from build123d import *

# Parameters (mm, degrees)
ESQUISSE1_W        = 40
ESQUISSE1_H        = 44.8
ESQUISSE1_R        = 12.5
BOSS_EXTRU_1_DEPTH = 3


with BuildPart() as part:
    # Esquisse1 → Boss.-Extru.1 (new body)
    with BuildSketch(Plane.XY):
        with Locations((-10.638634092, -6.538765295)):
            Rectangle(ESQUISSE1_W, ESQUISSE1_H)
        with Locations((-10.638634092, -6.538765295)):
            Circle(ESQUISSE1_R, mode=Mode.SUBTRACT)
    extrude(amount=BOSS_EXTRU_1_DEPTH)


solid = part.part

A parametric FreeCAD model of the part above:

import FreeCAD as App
import Part
import Sketcher

V = App.Vector
Q = App.Units.Quantity


def add_polygon(sketch, points):
    """Adds a closed chain of lines whose ends are joined by coincident constraints."""
    first, n = sketch.GeometryCount, len(points)
    for a, b in zip(points, points[1:] + points[:1]):
        sketch.addGeometry(Part.LineSegment(App.Vector(*a, 0), App.Vector(*b, 0)), False)
    for i in range(n):
        sketch.addConstraint(Sketcher.Constraint("Coincident", first + i, 2, first + (i + 1) % n, 1))

doc = App.newDocument("Part")
params = doc.addObject("Spreadsheet::Sheet", "Params")
for row, (alias, value) in enumerate([
    ("sketch1_diameter", "25 mm"),
    ("sketch1_width", "40 mm"),
    ("sketch1_height", "44.8 mm"),
    ("pad1_length", "3 mm"),
], start=1):
    params.set(f"A{row}", alias)
    params.set(f"B{row}", "=" + value)
    params.setAlias(f"B{row}", alias)

body = doc.addObject("PartDesign::Body", "Body")

# Sketch on XY plane
sketch1 = body.newObject("Sketcher::SketchObject", "Sketch")
sketch1.AttachmentSupport = (doc.getObject("XY_Plane"), [""])
sketch1.MapMode = "FlatFace"
add_polygon(sketch1, [(-30.638634, 15.861235), (-30.638634, -28.938765), (9.361366, -28.938765), (9.361366, 15.861235)])  # lines 0-3
sketch1.addGeometry(Part.Circle(V(-10.638634, -6.538765, 0), V(0, 0, 1), 12.5), False)  # 4
sketch1.addConstraint([
    Sketcher.Constraint("Vertical", 0),
    Sketcher.Constraint("Horizontal", 1),
    Sketcher.Constraint("Vertical", 2),
    Sketcher.Constraint("Horizontal", 3),
    Sketcher.Constraint("Diameter", 4, Q("25 mm")),
    Sketcher.Constraint("DistanceX", 1, 1, 1, 2, Q("40 mm")),
    Sketcher.Constraint("DistanceY", 0, 2, 0, 1, Q("44.8 mm")),
    Sketcher.Constraint("DistanceX", 0, 2, 4, 3, Q("20 mm")),
    Sketcher.Constraint("DistanceY", 0, 2, 4, 3, Q("22.4 mm")),
    Sketcher.Constraint("DistanceX", 4, 3, -1, 1, Q("10.638634 mm")),
    Sketcher.Constraint("DistanceY", 4, 3, -1, 1, Q("6.538765 mm")),
])
sketch1.setExpression("Constraints[8]", "Params.sketch1_diameter")
sketch1.setExpression("Constraints[9]", "Params.sketch1_width")
sketch1.setExpression("Constraints[10]", "Params.sketch1_height")
pad1 = body.newObject("PartDesign::Pad", "Pad")
pad1.Profile = sketch1
pad1.setExpression("Length", "Params.pad1_length")

doc.recompute()
